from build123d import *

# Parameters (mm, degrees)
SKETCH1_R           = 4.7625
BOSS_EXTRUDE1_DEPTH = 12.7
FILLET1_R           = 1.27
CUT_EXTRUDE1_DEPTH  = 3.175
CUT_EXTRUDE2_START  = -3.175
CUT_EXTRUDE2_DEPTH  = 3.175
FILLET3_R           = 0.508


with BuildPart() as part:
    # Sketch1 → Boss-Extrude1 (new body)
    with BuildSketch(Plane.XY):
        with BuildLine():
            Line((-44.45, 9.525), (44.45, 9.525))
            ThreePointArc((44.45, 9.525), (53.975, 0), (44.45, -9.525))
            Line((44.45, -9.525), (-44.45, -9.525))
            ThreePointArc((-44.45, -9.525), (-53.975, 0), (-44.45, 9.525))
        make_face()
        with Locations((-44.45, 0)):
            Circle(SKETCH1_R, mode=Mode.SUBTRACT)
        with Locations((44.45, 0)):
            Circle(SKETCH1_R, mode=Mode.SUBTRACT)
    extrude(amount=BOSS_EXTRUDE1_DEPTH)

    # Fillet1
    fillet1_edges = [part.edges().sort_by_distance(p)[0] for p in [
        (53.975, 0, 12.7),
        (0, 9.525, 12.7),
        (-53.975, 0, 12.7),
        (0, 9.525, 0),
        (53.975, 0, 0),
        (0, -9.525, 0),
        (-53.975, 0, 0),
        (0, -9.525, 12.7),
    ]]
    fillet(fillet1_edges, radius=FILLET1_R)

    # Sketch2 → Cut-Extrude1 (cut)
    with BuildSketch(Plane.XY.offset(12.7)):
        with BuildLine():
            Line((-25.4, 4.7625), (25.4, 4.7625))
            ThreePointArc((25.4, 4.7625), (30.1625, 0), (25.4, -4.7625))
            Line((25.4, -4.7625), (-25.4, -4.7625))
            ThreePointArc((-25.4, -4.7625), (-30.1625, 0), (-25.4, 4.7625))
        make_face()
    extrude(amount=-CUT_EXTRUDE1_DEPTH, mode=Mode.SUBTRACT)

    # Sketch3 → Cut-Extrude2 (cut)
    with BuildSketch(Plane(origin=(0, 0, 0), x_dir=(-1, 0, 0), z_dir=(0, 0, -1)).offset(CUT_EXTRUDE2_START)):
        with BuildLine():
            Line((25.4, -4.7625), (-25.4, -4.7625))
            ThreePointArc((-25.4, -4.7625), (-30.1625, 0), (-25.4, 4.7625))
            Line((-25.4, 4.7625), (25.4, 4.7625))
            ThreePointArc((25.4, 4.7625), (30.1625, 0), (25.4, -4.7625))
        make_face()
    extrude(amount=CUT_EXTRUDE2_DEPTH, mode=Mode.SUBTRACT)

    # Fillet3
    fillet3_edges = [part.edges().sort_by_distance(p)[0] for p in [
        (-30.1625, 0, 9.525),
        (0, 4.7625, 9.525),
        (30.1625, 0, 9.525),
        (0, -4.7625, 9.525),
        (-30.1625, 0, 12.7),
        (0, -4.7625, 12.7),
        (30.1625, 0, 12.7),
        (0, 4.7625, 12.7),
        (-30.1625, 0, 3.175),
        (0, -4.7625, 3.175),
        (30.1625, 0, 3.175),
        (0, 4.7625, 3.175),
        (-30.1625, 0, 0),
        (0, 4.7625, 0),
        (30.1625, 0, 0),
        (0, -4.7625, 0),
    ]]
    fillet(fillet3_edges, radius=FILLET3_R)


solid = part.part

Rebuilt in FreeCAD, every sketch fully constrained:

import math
import FreeCAD as App
import Part
import Sketcher
from FreeCAD import Vector
Q = App.Units.Quantity


def edges_at(feature, points):
    """Names of the edges that pass closest to the given points."""
    edges = feature.Shape.Edges
    near = lambda p: min(range(len(edges)), key=lambda i: edges[i].distToShape(Part.Vertex(*p))[0])
    return sorted({f"Edge{near(p) + 1}" for p in points})

doc = App.newDocument("Part")
body = doc.addObject("PartDesign::Body", "Body")

sketch1 = doc.addObject("Sketcher::SketchObject", "Sketch")
body.addObject(sketch1)
sketch1.AttachmentSupport = (doc.XY_Plane, [""])
sketch1.MapMode = "FlatFace"
sketch1.addGeometry([
    Part.LineSegment(Vector(44.45, 9.525, 0), Vector(-44.45, 9.525, 0)),
    Part.ArcOfCircle(Part.Circle(Vector(-44.45, 0, 0), Vector(0, 0, 1), 9.525), math.radians(90), math.radians(270)),
    Part.LineSegment(Vector(-44.45, -9.525, 0), Vector(44.45, -9.525, 0)),
    Part.ArcOfCircle(Part.Circle(Vector(44.45, 0, 0), Vector(0, 0, 1), 9.525), math.radians(-90), math.radians(90)),
    Part.Circle(Vector(44.45, 0, 0), Vector(0, 0, 1), 4.7625),
    Part.Circle(Vector(-44.45, 0, 0), Vector(0, 0, 1), 4.7625),
], False)
sketch1.addConstraint([
    Sketcher.Constraint("Tangent", 0, 2, 1, 1),
    Sketcher.Constraint("Tangent", 1, 2, 2, 1),
    Sketcher.Constraint("Tangent", 2, 2, 3, 1),
    Sketcher.Constraint("Tangent", 3, 2, 0, 1),
    Sketcher.Constraint("Horizontal", 0),
    Sketcher.Constraint("Horizontal", 2),
    Sketcher.Constraint("Coincident", 4, 3, 3, 3),
    Sketcher.Constraint("Coincident", 5, 3, 1, 3),
    Sketcher.Constraint("Equal", 4, 5),
    Sketcher.Constraint("Symmetric", 1, 3, 3, 3, -1, 1),
    Sketcher.Constraint("Diameter", 4, Q("0.375 in")),
    Sketcher.Constraint("DistanceX", 0, 2, 0, 1, Q("3.5 in")),
    Sketcher.Constraint("Radius", 1, Q("0.375 in")),
])
pad1 = doc.addObject("PartDesign::Pad", "Pad")
body.addObject(pad1)
pad1.Profile = sketch1
pad1.Length = Q("0.5 in")
doc.recompute()

fillet = doc.addObject("PartDesign::Fillet", "Fillet")
body.addObject(fillet)
fillet.Base = (pad1, edges_at(pad1, [
    (53.975, 0, 12.7),
    (0, 9.525, 12.7),
    (-53.975, 0, 12.7),
    (0, 9.525, 0),
    (53.975, 0, 0),
    (0, -9.525, 0),
    (-53.975, 0, 0),
    (0, -9.525, 12.7),
]))
fillet.Radius = Q("0.05 in")

sketch2 = doc.addObject("Sketcher::SketchObject", "Sketch001")
body.addObject(sketch2)
sketch2.AttachmentSupport = (doc.XY_Plane, [""])
sketch2.MapMode = "FlatFace"
sketch2.AttachmentOffset = App.Placement(Vector(0, 0, 0.5 * 25.4), App.Rotation())
sketch2.addGeometry([
    Part.LineSegment(Vector(25.4, 4.7625, 0), Vector(-25.4, 4.7625, 0)),
    Part.ArcOfCircle(Part.Circle(Vector(-25.4, 0, 0), Vector(0, 0, 1), 4.7625), math.radians(90), math.radians(270)),
    Part.LineSegment(Vector(-25.4, -4.7625, 0), Vector(25.4, -4.7625, 0)),
    Part.ArcOfCircle(Part.Circle(Vector(25.4, 0, 0), Vector(0, 0, 1), 4.7625), math.radians(-90), math.radians(90)),
], False)
sketch2.addConstraint([
    Sketcher.Constraint("Tangent", 0, 2, 1, 1),
    Sketcher.Constraint("Tangent", 1, 2, 2, 1),
    Sketcher.Constraint("Tangent", 2, 2, 3, 1),
    Sketcher.Constraint("Tangent", 3, 2, 0, 1),
    Sketcher.Constraint("Horizontal", 0),
    Sketcher.Constraint("Horizontal", 2),
    Sketcher.Constraint("Symmetric", 1, 3, 3, 3, -1, 1),
    Sketcher.Constraint("DistanceX", 0, 2, 0, 1, Q("2 in")),
    Sketcher.Constraint("Radius", 1, Q("0.1875 in")),
])
pocket1 = doc.addObject("PartDesign::Pocket", "Pocket")
body.addObject(pocket1)
pocket1.Profile = sketch2
pocket1.Length = Q("0.125 in")

sketch3 = doc.addObject("Sketcher::SketchObject", "Sketch002")
body.addObject(sketch3)
sketch3.AttachmentSupport = (doc.XY_Plane, [""])
sketch3.MapMode = "FlatFace"
sketch3.AttachmentOffset = App.Placement(Vector(0, 0, 0.125 * 25.4), App.Rotation())
sketch3.addGeometry([
    Part.LineSegment(Vector(25.4, -4.7625, 0), Vector(-25.4, -4.7625, 0)),
    Part.ArcOfCircle(Part.Circle(Vector(-25.4, 0, 0), Vector(0, 0, 1), 4.7625), math.radians(90), math.radians(270)),
    Part.LineSegment(Vector(-25.4, 4.7625, 0), Vector(25.4, 4.7625, 0)),
    Part.ArcOfCircle(Part.Circle(Vector(25.4, 0, 0), Vector(0, 0, 1), 4.7625), math.radians(-90), math.radians(90)),
], False)
sketch3.addConstraint([
    Sketcher.Constraint("Tangent", 0, 2, 1, 2),
    Sketcher.Constraint("Tangent", 1, 1, 2, 1),
    Sketcher.Constraint("Tangent", 2, 2, 3, 2),
    Sketcher.Constraint("Tangent", 3, 1, 0, 1),
    Sketcher.Constraint("Horizontal", 0),
    Sketcher.Constraint("Horizontal", 2),
    Sketcher.Constraint("Symmetric", 1, 3, 3, 3, -1, 1),
    Sketcher.Constraint("DistanceX", 0, 2, 0, 1, Q("2 in")),
    Sketcher.Constraint("Radius", 1, Q("0.1875 in")),
])
pocket2 = doc.addObject("PartDesign::Pocket", "Pocket001")
body.addObject(pocket2)
pocket2.Profile = sketch3
pocket2.Length = Q("0.125 in")
doc.recompute()

fillet2 = doc.addObject("PartDesign::Fillet", "Fillet001")
body.addObject(fillet2)
fillet2.Base = (pocket2, edges_at(pocket2, [
    (-30.163, 0, 9.525),
    (0, 4.763, 9.525),
    (30.163, 0, 9.525),
    (0, -4.763, 9.525),
    (-30.163, 0, 12.7),
    (0, -4.763, 12.7),
    (30.163, 0, 12.7),
    (0, 4.763, 12.7),
    (-30.163, 0, 3.175),
    (0, -4.763, 3.175),
    (30.163, 0, 3.175),
    (0, 4.763, 3.175),
    (-30.163, 0, 0),
    (0, 4.763, 0),
    (30.163, 0, 0),
    (0, -4.763, 0),
]))
fillet2.Radius = Q("0.02 in")

doc.recompute()
